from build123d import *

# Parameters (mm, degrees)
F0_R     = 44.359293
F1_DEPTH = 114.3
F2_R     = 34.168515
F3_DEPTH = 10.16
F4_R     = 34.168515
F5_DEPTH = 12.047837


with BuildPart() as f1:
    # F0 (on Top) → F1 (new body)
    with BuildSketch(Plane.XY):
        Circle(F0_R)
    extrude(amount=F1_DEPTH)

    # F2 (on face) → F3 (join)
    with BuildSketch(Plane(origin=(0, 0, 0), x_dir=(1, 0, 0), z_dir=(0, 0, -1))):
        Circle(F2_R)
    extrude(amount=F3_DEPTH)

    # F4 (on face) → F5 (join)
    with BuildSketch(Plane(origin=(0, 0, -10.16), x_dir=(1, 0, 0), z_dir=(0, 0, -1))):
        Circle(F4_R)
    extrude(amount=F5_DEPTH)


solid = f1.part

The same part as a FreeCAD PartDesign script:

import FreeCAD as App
import Part
import Sketcher
from FreeCAD import Vector
Q = App.Units.Quantity

doc = App.newDocument("Part")
body = doc.addObject("PartDesign::Body", "Body")

# Sketch on XY plane
sketch1 = body.newObject("Sketcher::SketchObject", "Sketch")
sketch1.AttachmentSupport = (doc.getObject("XY_Plane"), [""])
sketch1.MapMode = "FlatFace"
sketch1.addGeometry(Part.Circle(Vector(0, 0, 0), Vector(0, 0, 1), 44), False)
sketch1.addConstraint(Sketcher.Constraint("Coincident", 0, 3, -1, 1))
sketch1.addConstraint(Sketcher.Constraint("Diameter", 0, Q("88.718586 mm")))
pad1 = body.newObject("PartDesign::Pad", "Pad")
pad1.Profile = sketch1
pad1.Length = Q("4.5 in")

# Sketch on XY plane
sketch2 = body.newObject("Sketcher::SketchObject", "Sketch001")
sketch2.AttachmentSupport = (doc.getObject("XY_Plane"), [""])
sketch2.MapMode = "FlatFace"
sketch2.addGeometry(Part.Circle(Vector(0, 0, 0), Vector(0, 0, 1), 34), False)
sketch2.addConstraint(Sketcher.Constraint("Coincident", 0, 3, -1, 1))
sketch2.addConstraint(Sketcher.Constraint("Diameter", 0, Q("68.33703 mm")))
pad2 = body.newObject("PartDesign::Pad", "Pad001")
pad2.Profile = sketch2
pad2.Length = Q("0.4 in")
pad2.Reversed = True

# Sketch on XY plane
sketch3 = body.newObject("Sketcher::SketchObject", "Sketch002")
sketch3.AttachmentSupport = (doc.getObject("XY_Plane"), [""])
sketch3.MapMode = "FlatFace"
sketch3.AttachmentOffset = App.Placement(Vector(0, 0, -0.4 * 25.4), App.Rotation())
sketch3.addGeometry(Part.Circle(Vector(0, 0, 0), Vector(0, 0, 1), 34), False)
sketch3.addConstraint(Sketcher.Constraint("Coincident", 0, 3, -1, 1))
sketch3.addConstraint(Sketcher.Constraint("Diameter", 0, Q("68.33703 mm")))
pad3 = body.newObject("PartDesign::Pad", "Pad002")
pad3.Profile = sketch3
pad3.Length = 12.047837
pad3.Reversed = True

doc.recompute()
